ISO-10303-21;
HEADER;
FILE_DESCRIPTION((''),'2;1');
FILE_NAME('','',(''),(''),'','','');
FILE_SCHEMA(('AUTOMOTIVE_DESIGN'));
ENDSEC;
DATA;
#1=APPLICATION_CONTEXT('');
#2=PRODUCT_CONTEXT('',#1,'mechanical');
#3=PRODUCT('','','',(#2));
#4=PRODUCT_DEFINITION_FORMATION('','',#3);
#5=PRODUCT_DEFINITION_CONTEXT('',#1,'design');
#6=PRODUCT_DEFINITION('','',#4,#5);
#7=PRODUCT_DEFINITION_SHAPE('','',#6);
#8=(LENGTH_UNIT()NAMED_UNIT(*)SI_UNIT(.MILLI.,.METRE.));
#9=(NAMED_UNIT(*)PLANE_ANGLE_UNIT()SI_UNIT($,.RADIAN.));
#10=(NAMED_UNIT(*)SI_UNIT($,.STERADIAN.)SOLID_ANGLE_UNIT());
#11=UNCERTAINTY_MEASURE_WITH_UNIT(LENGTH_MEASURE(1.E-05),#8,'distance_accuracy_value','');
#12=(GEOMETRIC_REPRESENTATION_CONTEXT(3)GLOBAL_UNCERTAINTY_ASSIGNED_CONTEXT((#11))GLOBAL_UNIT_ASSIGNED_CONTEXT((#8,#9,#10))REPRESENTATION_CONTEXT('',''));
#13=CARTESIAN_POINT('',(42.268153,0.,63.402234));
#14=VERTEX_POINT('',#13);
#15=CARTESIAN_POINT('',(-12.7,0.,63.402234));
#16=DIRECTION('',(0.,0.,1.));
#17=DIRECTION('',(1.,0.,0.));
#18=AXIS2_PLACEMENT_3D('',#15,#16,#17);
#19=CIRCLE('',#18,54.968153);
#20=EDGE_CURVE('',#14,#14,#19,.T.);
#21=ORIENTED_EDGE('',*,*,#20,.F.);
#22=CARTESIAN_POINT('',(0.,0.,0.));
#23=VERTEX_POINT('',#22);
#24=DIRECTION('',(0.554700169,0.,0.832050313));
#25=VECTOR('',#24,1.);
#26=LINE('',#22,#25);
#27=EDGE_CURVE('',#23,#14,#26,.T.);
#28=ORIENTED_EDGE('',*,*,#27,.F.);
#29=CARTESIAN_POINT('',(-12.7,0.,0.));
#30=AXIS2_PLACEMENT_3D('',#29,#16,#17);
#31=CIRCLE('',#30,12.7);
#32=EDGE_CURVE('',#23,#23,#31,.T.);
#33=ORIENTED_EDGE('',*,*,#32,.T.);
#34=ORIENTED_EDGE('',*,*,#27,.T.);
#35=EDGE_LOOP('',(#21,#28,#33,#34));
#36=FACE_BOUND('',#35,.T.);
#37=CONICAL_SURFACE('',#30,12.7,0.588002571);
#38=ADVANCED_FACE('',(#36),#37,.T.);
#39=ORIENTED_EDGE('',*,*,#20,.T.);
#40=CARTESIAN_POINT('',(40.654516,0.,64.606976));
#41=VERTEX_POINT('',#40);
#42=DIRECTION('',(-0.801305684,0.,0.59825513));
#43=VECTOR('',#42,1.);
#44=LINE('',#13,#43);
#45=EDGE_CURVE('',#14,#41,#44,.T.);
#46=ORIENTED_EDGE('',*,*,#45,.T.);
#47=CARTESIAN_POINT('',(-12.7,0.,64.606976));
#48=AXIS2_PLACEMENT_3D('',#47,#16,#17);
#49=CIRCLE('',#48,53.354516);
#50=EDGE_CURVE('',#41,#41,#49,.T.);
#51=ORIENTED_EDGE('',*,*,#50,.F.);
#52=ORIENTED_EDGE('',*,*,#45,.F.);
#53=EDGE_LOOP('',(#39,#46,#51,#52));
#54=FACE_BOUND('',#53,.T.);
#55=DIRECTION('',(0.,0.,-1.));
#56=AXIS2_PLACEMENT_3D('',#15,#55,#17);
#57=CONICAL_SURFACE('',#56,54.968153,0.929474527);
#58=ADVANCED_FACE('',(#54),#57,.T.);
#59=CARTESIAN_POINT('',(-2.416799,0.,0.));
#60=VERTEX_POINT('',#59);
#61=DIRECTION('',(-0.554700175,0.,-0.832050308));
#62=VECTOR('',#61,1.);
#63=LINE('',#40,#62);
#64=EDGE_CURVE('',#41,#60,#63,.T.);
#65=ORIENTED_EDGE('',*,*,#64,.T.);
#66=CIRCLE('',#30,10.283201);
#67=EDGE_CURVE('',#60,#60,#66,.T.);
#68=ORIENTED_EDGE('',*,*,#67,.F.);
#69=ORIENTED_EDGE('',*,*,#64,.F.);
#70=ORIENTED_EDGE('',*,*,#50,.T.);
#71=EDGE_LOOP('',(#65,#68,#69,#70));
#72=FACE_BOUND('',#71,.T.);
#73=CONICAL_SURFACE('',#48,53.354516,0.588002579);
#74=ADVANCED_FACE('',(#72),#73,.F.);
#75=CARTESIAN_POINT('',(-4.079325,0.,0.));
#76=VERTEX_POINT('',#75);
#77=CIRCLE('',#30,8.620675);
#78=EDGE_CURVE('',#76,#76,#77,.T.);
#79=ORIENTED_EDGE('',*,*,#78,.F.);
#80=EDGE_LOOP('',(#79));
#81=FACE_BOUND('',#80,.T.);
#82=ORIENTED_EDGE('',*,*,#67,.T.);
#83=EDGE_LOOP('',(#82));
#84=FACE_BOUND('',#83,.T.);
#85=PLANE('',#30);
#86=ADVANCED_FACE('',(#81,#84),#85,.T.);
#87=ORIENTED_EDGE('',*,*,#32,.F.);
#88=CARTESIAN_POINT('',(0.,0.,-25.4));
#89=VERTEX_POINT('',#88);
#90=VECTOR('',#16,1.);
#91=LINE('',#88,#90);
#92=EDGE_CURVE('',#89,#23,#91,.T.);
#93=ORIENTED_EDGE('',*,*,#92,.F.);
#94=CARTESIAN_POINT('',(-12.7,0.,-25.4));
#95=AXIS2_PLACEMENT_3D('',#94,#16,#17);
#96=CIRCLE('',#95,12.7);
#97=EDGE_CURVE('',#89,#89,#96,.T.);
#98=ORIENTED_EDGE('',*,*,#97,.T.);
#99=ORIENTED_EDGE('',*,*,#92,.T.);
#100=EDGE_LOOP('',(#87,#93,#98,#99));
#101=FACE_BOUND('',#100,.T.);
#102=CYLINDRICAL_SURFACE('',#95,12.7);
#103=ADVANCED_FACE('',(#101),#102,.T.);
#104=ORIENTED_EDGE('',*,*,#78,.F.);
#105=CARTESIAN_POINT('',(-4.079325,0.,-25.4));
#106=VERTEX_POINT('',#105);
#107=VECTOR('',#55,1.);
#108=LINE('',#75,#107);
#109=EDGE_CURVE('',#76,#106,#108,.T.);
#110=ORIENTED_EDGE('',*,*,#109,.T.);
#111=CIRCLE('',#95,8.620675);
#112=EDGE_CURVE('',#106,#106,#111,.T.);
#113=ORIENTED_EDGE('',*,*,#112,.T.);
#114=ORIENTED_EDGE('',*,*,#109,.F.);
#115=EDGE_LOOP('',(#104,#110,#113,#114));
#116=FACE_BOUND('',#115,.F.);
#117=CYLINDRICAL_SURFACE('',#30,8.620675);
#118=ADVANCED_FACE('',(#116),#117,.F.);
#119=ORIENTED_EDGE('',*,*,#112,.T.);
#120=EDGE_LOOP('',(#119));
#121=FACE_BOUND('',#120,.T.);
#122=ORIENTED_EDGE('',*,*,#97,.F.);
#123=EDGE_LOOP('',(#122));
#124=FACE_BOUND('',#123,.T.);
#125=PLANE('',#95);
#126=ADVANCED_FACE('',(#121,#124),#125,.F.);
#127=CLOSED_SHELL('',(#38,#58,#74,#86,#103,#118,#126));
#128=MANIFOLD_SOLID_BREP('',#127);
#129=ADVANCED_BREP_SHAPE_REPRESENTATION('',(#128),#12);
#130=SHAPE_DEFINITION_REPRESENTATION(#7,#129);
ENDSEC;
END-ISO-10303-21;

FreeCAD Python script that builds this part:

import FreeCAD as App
import Part
import Sketcher

V = App.Vector
Q = App.Units.Quantity


def add_polygon(sketch, points):
    """Adds a closed chain of lines whose ends are joined by coincident constraints."""
    first, n = sketch.GeometryCount, len(points)
    for a, b in zip(points, points[1:] + points[:1]):
        sketch.addGeometry(Part.LineSegment(App.Vector(*a, 0), App.Vector(*b, 0)), False)
    for i in range(n):
        sketch.addConstraint(Sketcher.Constraint("Coincident", first + i, 2, first + (i + 1) % n, 1))

doc = App.newDocument("Part")
body = doc.addObject("PartDesign::Body", "Body")

# Sketch on XZ plane
sketch1 = doc.addObject("Sketcher::SketchObject", "Sketch")
body.addObject(sketch1)
sketch1.AttachmentSupport = (doc.XZ_Plane, [""])
sketch1.MapMode = "FlatFace"
add_polygon(sketch1, [(0, -25.4), (0, 0), (42.3, 63.4), (40.7, 64.6), (-2.4, 0), (-12.7, 0), (-12.7, -25.4)])  # lines 0-6
sketch1.addGeometry(Part.LineSegment(V(-12.7, -25.4, 0), V(-12.7, 64.6, 0)), True)  # axis
sketch1.addConstraint([
    Sketcher.Constraint("Vertical", 0),
    Sketcher.Constraint("Horizontal", 4),
    Sketcher.Constraint("Vertical", 5),
    Sketcher.Constraint("Horizontal", 6),
    Sketcher.Constraint("Vertical", 7),
    Sketcher.Constraint("Coincident", 0, 2, -1, 1),
    Sketcher.Constraint("Coincident", 7, 1, 5, 2),
    Sketcher.Constraint("PointOnObject", 3, 2, -1),
    Sketcher.Constraint("Parallel", 1, 3),
    Sketcher.Constraint("Horizontal", 2, 2, 7, 2),
    Sketcher.Constraint("DistanceY", 0, 1, 0, 2, Q("1 in")),
    Sketcher.Constraint("Distance", 1, Q("3 in")),
    Sketcher.Constraint("DistanceX", 6, 1, 6, 2, Q("0.5 in")),
    Sketcher.Constraint("DistanceX", 4, 2, 4, 1, 10.283201),
    Sketcher.Constraint("Distance", 2, 2.01376),
    Sketcher.Constraint("Distance", 3, 77.64792),
])
revolution = doc.addObject("PartDesign::Revolution", "Revolution")
body.addObject(revolution)
revolution.Profile = sketch1
revolution.ReferenceAxis = (sketch1, ["Axis0"])
revolution.Angle = 360

# Sketch on XY plane
sketch2 = doc.addObject("Sketcher::SketchObject", "Sketch001")
body.addObject(sketch2)
sketch2.AttachmentSupport = (doc.XY_Plane, [""])
sketch2.MapMode = "FlatFace"
sketch2.addGeometry(Part.Circle(V(-13, 0, 0), V(0, 0, 1), 9), False)
sketch2.addConstraint([
    Sketcher.Constraint("PointOnObject", 0, 3, -1),
    Sketcher.Constraint("DistanceX", 0, 3, -1, 1, Q("0.5 in")),
    Sketcher.Constraint("Diameter", 0, 17.24135),
])
pocket1 = doc.addObject("PartDesign::Pocket", "Pocket")
body.addObject(pocket1)
pocket1.Profile = sketch2
pocket1.Length = Q("1 in")

doc.recompute()
